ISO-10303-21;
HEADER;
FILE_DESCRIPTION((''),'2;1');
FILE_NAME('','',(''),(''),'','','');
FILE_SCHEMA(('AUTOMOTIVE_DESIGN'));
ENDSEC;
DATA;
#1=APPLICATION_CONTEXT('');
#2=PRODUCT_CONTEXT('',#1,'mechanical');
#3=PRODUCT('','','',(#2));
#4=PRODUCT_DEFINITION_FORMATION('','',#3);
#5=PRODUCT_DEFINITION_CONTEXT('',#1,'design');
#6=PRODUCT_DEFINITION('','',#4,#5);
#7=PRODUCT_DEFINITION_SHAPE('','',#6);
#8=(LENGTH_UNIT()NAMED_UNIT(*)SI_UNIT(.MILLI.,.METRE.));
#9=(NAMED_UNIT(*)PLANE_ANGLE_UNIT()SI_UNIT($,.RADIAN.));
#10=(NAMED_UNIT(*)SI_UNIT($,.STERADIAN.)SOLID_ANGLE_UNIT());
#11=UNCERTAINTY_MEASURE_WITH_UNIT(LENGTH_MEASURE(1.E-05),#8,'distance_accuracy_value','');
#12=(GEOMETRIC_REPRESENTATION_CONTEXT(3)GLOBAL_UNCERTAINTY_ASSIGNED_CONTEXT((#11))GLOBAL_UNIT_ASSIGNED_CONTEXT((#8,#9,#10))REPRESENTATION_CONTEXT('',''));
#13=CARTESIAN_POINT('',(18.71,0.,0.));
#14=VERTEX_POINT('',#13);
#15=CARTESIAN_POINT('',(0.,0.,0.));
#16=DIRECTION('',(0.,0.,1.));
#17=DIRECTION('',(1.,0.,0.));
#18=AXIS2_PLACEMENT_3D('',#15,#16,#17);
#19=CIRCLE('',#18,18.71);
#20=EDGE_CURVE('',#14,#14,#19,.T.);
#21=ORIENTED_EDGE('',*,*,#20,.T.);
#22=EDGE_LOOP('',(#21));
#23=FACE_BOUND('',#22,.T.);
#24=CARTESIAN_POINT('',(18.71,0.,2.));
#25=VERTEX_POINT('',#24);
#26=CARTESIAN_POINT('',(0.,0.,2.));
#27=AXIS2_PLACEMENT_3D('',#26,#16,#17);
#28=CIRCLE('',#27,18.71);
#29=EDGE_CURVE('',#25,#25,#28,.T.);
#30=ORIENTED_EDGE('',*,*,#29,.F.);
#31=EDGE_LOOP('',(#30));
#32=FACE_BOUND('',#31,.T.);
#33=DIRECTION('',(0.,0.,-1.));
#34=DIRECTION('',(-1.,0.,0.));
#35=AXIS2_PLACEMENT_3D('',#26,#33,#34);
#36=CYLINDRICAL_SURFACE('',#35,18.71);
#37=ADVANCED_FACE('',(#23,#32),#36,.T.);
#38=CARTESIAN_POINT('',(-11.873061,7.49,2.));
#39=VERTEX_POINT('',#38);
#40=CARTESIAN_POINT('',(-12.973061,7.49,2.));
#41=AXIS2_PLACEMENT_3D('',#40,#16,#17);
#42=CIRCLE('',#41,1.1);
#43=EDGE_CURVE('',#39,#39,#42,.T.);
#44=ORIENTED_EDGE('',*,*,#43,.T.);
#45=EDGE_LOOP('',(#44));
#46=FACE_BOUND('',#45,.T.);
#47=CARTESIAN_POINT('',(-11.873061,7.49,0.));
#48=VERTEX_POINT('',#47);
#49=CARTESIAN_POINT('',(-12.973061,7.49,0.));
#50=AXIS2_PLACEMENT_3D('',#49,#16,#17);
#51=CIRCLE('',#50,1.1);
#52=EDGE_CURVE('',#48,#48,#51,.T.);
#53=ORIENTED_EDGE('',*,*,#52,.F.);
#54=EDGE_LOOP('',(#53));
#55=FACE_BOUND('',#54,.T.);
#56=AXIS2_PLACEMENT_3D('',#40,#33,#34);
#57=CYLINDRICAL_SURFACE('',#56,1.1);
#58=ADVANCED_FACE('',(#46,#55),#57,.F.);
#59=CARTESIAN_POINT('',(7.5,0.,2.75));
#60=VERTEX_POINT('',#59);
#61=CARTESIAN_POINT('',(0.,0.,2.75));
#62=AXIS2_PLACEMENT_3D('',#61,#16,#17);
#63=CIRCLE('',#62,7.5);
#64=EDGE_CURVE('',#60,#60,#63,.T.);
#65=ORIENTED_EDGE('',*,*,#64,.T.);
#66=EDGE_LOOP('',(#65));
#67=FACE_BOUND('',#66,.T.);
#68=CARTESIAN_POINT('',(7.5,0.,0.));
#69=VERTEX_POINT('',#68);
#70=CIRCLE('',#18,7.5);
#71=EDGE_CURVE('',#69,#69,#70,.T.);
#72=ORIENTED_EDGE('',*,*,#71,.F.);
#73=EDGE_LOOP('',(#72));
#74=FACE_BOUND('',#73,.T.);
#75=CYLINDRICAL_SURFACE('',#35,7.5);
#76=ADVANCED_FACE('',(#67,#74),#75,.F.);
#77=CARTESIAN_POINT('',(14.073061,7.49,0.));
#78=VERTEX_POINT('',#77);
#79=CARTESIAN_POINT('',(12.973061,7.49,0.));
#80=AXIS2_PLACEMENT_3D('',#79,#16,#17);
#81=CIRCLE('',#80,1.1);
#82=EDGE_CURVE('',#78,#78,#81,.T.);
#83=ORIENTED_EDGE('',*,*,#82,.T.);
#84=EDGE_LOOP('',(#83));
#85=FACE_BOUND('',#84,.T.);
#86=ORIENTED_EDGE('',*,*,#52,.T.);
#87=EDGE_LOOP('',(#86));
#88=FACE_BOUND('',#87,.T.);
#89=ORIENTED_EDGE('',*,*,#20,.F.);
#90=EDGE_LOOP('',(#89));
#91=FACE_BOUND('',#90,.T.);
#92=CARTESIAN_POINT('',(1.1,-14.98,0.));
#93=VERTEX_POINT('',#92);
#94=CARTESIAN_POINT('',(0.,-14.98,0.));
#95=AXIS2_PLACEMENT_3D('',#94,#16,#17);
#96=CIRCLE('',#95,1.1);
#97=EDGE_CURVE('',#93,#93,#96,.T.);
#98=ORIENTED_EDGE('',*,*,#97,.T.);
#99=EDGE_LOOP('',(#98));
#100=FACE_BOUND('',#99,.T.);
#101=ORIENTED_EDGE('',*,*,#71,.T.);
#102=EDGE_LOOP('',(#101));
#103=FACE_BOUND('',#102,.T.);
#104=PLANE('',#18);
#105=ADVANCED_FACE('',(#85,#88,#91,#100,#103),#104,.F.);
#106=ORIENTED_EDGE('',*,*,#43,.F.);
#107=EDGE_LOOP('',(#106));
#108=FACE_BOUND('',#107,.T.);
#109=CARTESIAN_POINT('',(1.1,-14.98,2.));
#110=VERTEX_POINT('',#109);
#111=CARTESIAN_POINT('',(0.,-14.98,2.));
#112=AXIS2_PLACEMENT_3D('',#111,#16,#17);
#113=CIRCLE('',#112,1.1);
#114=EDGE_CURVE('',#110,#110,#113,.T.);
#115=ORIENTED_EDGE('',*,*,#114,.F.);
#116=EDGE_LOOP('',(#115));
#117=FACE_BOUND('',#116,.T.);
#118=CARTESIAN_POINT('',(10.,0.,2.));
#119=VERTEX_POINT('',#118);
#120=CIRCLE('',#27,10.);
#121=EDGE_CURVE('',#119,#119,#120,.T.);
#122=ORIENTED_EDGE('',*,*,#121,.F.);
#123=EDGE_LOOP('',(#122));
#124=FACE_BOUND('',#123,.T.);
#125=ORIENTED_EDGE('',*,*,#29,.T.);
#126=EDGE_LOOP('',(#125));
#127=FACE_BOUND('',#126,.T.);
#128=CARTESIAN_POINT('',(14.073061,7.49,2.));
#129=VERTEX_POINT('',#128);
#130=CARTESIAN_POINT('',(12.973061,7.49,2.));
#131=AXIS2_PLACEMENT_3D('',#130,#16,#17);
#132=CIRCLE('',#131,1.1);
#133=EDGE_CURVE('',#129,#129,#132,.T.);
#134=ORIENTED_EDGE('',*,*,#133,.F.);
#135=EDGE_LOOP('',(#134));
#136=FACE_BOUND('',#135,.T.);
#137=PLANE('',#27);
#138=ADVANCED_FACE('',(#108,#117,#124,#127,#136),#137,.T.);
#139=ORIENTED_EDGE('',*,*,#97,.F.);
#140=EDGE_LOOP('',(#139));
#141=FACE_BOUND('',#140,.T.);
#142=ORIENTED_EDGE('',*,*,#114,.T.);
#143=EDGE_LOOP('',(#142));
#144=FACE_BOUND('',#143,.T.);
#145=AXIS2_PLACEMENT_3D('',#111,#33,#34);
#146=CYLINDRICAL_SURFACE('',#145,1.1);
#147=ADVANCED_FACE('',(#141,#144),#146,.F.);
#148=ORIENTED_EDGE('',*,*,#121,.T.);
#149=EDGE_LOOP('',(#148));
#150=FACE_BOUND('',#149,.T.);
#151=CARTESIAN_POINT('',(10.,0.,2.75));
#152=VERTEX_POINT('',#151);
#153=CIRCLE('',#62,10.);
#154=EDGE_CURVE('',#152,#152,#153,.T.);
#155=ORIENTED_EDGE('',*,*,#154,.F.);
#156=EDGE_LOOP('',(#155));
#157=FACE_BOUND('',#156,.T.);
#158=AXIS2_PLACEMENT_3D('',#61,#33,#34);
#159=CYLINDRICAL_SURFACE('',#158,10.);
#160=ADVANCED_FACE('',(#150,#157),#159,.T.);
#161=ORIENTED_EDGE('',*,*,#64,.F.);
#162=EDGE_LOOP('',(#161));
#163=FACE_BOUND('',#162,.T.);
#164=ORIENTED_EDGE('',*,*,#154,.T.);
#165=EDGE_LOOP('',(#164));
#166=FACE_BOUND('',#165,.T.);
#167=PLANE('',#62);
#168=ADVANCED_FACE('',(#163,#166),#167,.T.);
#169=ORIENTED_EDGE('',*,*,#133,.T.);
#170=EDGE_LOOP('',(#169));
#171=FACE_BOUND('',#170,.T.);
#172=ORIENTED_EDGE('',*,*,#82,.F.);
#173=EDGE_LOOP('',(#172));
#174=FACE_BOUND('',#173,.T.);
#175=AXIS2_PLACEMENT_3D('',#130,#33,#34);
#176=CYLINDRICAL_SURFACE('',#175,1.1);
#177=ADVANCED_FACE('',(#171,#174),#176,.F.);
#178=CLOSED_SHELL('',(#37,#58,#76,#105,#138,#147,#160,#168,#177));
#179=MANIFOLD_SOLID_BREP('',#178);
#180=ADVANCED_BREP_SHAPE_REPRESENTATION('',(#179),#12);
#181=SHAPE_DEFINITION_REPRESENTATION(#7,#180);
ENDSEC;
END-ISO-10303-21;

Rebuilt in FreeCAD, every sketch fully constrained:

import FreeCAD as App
import Part
import Sketcher

V = App.Vector
Q = App.Units.Quantity

doc = App.newDocument("Part")
body = doc.addObject("PartDesign::Body", "Body")

sketch1 = body.newObject("Sketcher::SketchObject", "Sketch")
sketch1.AttachmentSupport = (doc.getObject("XY_Plane"), [""])
sketch1.MapMode = "FlatFace"
sketch1.addGeometry([
    Part.Circle(V(0, 0, 0), V(0, 0, 1), 18.7),
    Part.Circle(V(0, -15, 0), V(0, 0, 1), 1.1),
    Part.Circle(V(-13, 7.5, 0), V(0, 0, 1), 1.1),
    Part.Circle(V(0, 0, 0), V(0, 0, 1), 7.5),
    Part.Circle(V(13, 7.5, 0), V(0, 0, 1), 1.1),
], False)
sketch1.addConstraint([
    Sketcher.Constraint("Coincident", 0, 3, -1, 1),
    Sketcher.Constraint("Coincident", 3, 3, -1, 1),
    Sketcher.Constraint("Equal", 1, 2),
    Sketcher.Constraint("Equal", 2, 4),
    Sketcher.Constraint("Symmetric", 2, 3, 4, 3, -2),
    Sketcher.Constraint("PointOnObject", 1, 3, -2),
    Sketcher.Constraint("Diameter", 3, Q("15 mm")),
    Sketcher.Constraint("Diameter", 1, Q("2.2 mm")),
    Sketcher.Constraint("Diameter", 0, Q("37.42 mm")),
    Sketcher.Constraint("DistanceY", 1, 3, -1, 1, Q("14.98 mm")),
    Sketcher.Constraint("DistanceY", -1, 1, 2, 3, Q("7.49 mm")),
    Sketcher.Constraint("DistanceX", 2, 3, -1, 1, Q("12.973061 mm")),
])
pad1 = body.newObject("PartDesign::Pad", "Pad")
pad1.Profile = sketch1
pad1.Length = 2

sketch2 = body.newObject("Sketcher::SketchObject", "Sketch001")
sketch2.AttachmentSupport = (doc.getObject("XY_Plane"), [""])
sketch2.MapMode = "FlatFace"
sketch2.AttachmentOffset = App.Placement(V(0, 0, 2), App.Rotation())
sketch2.addGeometry([
    Part.Circle(V(0, 0, 0), V(0, 0, 1), 10),
    Part.Circle(V(0, 0, 0), V(0, 0, 1), 8),
], False)
sketch2.addConstraint([
    Sketcher.Constraint("Coincident", 0, 3, -1, 1),
    Sketcher.Constraint("Coincident", 1, 3, -1, 1),
    Sketcher.Constraint("Diameter", 0, Q("20 mm")),
    Sketcher.Constraint("Diameter", 1, Q("15 mm")),
])
pad2 = body.newObject("PartDesign::Pad", "Pad001")
pad2.Profile = sketch2
pad2.Length = 0.75

doc.recompute()
